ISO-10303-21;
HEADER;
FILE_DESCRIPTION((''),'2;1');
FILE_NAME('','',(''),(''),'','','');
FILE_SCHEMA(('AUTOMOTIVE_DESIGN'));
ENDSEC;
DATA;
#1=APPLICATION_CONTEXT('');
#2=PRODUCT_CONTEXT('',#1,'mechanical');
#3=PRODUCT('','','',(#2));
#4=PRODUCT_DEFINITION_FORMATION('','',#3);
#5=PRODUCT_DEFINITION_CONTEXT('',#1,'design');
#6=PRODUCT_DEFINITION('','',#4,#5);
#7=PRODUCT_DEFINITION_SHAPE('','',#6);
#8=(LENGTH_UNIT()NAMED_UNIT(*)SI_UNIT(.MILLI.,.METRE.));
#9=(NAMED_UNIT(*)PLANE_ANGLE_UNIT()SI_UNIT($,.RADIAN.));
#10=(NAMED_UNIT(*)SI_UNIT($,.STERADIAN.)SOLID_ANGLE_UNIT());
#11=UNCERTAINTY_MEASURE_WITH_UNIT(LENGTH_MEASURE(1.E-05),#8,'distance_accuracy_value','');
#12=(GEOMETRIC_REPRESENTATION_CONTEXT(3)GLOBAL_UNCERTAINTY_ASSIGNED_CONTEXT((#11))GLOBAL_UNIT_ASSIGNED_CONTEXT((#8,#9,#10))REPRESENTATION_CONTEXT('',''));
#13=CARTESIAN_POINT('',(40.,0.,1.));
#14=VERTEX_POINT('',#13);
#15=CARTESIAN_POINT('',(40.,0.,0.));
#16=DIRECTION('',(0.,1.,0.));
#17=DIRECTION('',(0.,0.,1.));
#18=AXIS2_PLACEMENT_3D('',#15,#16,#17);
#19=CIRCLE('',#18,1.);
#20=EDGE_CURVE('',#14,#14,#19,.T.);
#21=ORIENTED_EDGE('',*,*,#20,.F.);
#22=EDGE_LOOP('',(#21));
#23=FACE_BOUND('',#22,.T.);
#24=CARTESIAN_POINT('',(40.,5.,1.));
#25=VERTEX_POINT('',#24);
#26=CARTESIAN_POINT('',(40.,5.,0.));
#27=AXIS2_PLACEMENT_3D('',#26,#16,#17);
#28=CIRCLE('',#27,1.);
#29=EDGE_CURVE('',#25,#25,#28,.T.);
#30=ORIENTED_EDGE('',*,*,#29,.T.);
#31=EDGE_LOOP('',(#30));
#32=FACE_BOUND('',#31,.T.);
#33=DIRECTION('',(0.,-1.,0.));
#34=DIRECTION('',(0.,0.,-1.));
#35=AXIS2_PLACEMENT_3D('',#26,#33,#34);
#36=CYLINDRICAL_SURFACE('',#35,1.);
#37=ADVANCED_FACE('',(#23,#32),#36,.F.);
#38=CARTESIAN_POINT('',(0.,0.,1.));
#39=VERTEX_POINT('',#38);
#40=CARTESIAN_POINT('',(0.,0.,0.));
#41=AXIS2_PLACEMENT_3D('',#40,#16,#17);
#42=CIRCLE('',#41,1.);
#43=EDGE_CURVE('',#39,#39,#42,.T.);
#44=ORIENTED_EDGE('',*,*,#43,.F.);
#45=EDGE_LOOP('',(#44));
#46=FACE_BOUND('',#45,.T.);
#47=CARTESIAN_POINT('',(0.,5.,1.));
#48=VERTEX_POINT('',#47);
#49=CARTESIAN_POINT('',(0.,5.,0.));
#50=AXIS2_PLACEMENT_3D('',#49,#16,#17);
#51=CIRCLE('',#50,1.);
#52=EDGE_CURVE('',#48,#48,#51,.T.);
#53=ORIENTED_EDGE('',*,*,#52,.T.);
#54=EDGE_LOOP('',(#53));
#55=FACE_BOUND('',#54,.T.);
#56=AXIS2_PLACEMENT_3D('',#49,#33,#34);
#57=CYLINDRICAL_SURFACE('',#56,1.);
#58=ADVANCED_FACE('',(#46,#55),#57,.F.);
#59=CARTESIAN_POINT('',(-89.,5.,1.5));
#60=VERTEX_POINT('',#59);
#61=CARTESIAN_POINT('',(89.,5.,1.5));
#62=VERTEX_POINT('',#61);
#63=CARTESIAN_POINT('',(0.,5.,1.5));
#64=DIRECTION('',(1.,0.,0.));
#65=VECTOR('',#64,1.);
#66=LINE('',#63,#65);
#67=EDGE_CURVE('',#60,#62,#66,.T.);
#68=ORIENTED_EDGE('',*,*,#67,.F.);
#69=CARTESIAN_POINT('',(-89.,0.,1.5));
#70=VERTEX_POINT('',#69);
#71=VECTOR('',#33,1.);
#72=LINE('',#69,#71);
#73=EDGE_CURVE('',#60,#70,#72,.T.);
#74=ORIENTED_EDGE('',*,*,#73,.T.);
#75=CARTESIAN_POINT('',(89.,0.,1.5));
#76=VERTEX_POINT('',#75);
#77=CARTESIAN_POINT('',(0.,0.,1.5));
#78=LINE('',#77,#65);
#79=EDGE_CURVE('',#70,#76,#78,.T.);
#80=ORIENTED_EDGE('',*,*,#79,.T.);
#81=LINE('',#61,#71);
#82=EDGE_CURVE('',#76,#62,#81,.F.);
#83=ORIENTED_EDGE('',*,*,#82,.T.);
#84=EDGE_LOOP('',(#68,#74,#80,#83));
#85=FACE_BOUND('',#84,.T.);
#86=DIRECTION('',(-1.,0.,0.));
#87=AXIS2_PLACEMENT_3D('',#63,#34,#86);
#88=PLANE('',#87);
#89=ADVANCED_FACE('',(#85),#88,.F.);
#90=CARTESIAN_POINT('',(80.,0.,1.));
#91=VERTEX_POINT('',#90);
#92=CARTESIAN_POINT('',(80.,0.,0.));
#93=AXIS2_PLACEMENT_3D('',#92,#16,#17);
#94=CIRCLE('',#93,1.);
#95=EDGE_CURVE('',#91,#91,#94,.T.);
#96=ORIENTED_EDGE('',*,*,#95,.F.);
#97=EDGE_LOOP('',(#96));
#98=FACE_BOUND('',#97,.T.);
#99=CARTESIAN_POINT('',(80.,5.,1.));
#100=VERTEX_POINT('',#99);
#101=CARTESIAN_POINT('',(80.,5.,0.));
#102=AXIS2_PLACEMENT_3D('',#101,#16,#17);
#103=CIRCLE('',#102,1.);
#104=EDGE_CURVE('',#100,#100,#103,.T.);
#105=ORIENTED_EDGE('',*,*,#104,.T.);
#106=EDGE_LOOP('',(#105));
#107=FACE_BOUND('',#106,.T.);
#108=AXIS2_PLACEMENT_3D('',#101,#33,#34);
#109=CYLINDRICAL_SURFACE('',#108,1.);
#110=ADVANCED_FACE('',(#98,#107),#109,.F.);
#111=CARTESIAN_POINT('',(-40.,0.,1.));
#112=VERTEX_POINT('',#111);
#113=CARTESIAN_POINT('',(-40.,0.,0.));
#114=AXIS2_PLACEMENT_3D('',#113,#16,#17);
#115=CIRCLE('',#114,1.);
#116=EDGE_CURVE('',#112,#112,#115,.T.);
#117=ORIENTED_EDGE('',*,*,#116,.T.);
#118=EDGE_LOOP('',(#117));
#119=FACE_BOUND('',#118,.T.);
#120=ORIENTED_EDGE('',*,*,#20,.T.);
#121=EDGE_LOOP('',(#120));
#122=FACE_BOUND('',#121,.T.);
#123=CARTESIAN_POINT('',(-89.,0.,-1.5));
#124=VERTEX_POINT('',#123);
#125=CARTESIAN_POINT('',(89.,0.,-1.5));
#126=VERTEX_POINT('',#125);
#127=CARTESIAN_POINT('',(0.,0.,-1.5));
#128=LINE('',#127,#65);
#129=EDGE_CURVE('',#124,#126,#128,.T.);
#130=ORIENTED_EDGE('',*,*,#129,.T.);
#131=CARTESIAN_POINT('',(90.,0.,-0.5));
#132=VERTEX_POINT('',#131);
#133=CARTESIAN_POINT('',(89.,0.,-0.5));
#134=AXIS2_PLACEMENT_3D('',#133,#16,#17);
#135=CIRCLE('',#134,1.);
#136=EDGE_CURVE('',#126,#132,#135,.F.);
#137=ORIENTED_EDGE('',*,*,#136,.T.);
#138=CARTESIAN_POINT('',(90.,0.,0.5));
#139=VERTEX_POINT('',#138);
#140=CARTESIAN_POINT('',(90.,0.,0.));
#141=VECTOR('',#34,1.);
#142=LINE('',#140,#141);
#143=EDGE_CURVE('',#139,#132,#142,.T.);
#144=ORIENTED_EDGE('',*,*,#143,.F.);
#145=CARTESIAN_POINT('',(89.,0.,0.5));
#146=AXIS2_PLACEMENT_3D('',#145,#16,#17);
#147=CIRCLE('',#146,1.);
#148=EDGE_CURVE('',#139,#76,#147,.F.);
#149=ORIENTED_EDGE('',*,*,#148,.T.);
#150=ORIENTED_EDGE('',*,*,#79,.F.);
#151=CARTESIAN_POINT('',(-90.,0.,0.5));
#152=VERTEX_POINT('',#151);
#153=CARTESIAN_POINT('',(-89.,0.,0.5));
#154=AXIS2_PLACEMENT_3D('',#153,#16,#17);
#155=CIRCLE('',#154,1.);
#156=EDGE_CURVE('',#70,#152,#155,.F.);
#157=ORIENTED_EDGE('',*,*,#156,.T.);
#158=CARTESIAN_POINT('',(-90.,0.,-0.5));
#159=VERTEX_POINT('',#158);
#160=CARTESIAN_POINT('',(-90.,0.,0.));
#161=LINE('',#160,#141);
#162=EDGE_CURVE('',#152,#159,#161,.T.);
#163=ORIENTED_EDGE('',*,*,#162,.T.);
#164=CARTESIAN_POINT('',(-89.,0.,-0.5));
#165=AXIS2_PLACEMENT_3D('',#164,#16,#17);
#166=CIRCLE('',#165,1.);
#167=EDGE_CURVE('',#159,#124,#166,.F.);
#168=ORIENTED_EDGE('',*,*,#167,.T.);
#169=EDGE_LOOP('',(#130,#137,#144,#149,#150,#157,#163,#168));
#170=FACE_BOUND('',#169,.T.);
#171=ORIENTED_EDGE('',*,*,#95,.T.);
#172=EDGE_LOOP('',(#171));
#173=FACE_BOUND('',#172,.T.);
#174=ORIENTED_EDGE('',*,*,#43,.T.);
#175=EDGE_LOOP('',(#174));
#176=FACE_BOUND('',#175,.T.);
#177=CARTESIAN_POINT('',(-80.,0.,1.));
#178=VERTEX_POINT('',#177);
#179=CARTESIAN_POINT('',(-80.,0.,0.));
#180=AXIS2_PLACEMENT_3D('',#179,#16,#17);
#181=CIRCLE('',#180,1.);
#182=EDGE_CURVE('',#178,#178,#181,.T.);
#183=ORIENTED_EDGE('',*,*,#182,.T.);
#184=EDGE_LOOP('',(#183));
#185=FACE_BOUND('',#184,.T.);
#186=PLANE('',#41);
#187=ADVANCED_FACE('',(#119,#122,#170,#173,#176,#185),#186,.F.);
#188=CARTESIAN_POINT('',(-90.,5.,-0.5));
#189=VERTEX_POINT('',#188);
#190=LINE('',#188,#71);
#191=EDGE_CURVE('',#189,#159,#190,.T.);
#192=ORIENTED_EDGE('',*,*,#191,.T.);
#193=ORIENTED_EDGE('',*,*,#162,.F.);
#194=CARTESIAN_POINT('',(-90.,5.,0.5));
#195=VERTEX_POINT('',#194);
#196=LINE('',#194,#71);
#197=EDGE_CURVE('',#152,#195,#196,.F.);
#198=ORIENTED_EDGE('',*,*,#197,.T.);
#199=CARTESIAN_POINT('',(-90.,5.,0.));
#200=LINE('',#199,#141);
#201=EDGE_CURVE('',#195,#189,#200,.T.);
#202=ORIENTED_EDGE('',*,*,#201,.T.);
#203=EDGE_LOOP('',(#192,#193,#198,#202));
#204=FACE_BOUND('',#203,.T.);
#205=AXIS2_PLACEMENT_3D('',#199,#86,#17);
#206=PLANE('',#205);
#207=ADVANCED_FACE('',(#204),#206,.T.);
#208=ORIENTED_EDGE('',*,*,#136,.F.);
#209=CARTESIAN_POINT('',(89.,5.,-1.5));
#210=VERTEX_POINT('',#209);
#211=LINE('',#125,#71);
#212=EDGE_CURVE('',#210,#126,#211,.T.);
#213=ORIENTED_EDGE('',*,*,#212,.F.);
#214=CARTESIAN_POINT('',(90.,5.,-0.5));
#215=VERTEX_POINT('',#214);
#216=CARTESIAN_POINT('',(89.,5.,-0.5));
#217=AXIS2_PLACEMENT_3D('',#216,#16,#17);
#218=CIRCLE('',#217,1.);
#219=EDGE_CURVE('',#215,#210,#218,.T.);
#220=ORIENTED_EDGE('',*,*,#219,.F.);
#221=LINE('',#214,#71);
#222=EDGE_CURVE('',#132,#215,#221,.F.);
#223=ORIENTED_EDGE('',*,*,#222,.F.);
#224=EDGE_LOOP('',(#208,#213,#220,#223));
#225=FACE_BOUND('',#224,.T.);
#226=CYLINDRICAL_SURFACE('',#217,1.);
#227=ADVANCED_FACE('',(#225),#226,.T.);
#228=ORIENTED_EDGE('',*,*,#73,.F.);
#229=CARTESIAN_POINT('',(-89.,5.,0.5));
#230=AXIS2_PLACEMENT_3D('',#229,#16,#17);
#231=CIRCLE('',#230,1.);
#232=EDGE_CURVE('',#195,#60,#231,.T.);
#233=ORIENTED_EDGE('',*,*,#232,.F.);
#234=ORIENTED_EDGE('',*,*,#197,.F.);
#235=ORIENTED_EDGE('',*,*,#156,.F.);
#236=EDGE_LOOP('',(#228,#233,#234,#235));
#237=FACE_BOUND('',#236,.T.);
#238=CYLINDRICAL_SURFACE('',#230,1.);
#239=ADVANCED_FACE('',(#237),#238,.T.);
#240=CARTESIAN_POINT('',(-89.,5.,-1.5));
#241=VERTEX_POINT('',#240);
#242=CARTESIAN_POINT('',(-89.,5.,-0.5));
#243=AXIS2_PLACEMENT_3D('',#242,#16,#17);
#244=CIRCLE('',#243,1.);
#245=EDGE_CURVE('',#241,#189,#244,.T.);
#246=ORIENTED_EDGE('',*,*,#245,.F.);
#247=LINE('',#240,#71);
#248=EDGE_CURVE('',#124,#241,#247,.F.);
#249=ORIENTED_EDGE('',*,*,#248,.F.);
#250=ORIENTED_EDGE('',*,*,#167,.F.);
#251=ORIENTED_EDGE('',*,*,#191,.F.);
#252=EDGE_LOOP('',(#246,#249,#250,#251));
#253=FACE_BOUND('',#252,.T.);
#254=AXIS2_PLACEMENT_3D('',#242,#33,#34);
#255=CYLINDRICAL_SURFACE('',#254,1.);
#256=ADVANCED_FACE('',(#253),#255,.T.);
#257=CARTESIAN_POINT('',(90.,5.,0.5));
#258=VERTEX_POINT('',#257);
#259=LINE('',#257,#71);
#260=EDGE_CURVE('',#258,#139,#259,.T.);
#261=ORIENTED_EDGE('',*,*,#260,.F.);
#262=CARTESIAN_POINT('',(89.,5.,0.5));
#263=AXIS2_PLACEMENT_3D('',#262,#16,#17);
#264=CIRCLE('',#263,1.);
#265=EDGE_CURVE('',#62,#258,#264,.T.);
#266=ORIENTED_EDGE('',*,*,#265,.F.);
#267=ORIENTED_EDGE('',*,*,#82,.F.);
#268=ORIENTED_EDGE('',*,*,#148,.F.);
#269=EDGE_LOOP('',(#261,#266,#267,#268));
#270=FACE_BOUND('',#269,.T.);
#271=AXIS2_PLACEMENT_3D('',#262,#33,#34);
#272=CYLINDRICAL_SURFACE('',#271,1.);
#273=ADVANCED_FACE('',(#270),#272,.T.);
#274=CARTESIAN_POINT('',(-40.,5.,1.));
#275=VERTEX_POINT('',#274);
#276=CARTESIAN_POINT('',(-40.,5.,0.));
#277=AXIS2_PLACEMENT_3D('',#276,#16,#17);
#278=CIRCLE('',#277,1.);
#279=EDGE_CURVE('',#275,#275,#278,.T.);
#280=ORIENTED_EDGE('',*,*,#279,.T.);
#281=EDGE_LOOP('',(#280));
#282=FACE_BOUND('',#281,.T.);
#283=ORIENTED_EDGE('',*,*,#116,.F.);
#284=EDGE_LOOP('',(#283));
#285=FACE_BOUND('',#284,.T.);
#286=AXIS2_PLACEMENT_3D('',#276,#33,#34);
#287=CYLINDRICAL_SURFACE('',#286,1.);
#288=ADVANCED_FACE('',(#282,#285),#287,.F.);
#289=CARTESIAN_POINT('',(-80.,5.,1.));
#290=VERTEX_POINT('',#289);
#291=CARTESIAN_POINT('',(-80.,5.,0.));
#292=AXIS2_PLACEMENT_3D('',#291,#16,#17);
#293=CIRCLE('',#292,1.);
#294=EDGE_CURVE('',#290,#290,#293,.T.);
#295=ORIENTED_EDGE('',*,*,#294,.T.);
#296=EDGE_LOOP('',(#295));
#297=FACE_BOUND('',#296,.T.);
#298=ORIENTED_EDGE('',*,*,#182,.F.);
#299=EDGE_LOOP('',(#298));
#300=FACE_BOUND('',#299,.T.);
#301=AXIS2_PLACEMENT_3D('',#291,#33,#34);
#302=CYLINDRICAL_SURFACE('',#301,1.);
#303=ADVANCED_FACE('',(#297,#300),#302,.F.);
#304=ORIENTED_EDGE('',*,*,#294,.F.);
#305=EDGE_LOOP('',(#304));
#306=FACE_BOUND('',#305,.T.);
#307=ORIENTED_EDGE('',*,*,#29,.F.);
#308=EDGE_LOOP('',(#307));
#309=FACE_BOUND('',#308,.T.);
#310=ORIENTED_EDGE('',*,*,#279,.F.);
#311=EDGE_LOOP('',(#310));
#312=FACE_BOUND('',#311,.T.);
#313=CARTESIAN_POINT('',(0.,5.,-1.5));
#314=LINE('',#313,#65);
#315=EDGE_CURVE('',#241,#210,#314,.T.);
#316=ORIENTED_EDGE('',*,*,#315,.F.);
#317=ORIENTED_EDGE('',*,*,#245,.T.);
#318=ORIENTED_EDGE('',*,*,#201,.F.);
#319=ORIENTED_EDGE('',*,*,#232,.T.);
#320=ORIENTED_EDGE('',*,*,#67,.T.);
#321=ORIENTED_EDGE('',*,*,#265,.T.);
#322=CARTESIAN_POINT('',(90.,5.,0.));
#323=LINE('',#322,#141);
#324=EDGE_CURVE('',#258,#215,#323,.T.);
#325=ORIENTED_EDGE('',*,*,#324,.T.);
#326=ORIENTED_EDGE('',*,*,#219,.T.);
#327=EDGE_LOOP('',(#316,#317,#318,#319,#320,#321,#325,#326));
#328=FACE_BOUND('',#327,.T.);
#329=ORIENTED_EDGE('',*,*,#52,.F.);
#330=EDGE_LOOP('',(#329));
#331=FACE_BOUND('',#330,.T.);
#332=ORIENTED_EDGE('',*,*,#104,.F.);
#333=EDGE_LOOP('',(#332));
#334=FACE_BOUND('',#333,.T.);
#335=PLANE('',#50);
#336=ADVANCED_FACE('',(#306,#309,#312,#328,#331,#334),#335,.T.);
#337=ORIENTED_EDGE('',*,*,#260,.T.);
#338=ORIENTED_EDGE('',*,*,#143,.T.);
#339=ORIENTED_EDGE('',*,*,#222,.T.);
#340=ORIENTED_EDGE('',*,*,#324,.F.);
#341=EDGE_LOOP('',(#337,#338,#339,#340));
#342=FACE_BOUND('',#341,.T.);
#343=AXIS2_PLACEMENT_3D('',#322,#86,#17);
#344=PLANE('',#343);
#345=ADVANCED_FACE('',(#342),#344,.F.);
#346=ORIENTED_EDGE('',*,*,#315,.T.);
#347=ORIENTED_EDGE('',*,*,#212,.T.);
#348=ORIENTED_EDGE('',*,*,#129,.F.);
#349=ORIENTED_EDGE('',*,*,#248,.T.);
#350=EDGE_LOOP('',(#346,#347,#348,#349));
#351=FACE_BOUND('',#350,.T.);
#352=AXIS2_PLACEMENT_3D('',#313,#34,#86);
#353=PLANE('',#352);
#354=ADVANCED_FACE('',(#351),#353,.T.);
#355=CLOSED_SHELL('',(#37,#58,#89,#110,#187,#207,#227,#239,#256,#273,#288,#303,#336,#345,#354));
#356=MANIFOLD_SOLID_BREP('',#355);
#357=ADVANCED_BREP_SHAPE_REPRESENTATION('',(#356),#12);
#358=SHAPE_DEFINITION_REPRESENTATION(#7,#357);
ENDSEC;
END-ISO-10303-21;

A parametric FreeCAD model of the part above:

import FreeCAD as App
import Part
import Sketcher
Q = App.Units.Quantity


def edges_at(feature, points):
    """Names of the edges that pass closest to the given points."""
    edges = feature.Shape.Edges
    near = lambda p: min(range(len(edges)), key=lambda i: edges[i].distToShape(Part.Vertex(*p))[0])
    return sorted({f"Edge{near(p) + 1}" for p in points})


def add_polygon(sketch, points):
    """Adds a closed chain of lines whose ends are joined by coincident constraints."""
    first, n = sketch.GeometryCount, len(points)
    for a, b in zip(points, points[1:] + points[:1]):
        sketch.addGeometry(Part.LineSegment(App.Vector(*a, 0), App.Vector(*b, 0)), False)
    for i in range(n):
        sketch.addConstraint(Sketcher.Constraint("Coincident", first + i, 2, first + (i + 1) % n, 1))

doc = App.newDocument("Part")
body = doc.addObject("PartDesign::Body", "Body")

sketch1 = body.newObject("Sketcher::SketchObject", "Sketch")
sketch1.AttachmentSupport = (doc.getObject("XZ_Plane"), [""])
sketch1.MapMode = "FlatFace"
add_polygon(sketch1, [(-90, -1.5), (-90, 1.5), (90, 1.5), (90, -1.5)])
sketch1.addGeometry(Part.Circle(App.Vector(-80, 0, 0), App.Vector(0, 0, 1), 1), False)
sketch1.addGeometry(Part.Circle(App.Vector(-40, 0, 0), App.Vector(0, 0, 1), 1), False)
sketch1.addGeometry(Part.Circle(App.Vector(0, 0, 0), App.Vector(0, 0, 1), 1), False)
sketch1.addGeometry(Part.Circle(App.Vector(40, 0, 0), App.Vector(0, 0, 1), 1), False)
sketch1.addGeometry(Part.Circle(App.Vector(80, 0, 0), App.Vector(0, 0, 1), 1), False)
sketch1.addConstraint(Sketcher.Constraint("Vertical", 0))
sketch1.addConstraint(Sketcher.Constraint("Horizontal", 1))
sketch1.addConstraint(Sketcher.Constraint("Vertical", 2))
sketch1.addConstraint(Sketcher.Constraint("Horizontal", 3))
sketch1.addConstraint(Sketcher.Constraint("Coincident", 6, 3, -1, 1))
sketch1.addConstraint(Sketcher.Constraint("Equal", 4, 5))
sketch1.addConstraint(Sketcher.Constraint("Equal", 5, 6))
sketch1.addConstraint(Sketcher.Constraint("Equal", 6, 7))
sketch1.addConstraint(Sketcher.Constraint("Equal", 7, 8))
sketch1.addConstraint(Sketcher.Constraint("Symmetric", 5, 3, 7, 3, -1, 1))
sketch1.addConstraint(Sketcher.Constraint("Symmetric", 4, 3, 8, 3, -1, 1))
sketch1.addConstraint(Sketcher.Constraint("Symmetric", 0, 2, 2, 2, -1, 1))
sketch1.addConstraint(Sketcher.Constraint("PointOnObject", 4, 3, -1))
sketch1.addConstraint(Sketcher.Constraint("PointOnObject", 5, 3, -1))
sketch1.addConstraint(Sketcher.Constraint("Diameter", 4, Q("2 mm")))
sketch1.addConstraint(Sketcher.Constraint("DistanceX", 1, 1, 1, 2, Q("180 mm")))
sketch1.addConstraint(Sketcher.Constraint("DistanceY", 0, 1, 0, 2, Q("3 mm")))
sketch1.addConstraint(Sketcher.Constraint("DistanceX", 4, 3, -1, 1, Q("80 mm")))
sketch1.addConstraint(Sketcher.Constraint("DistanceX", 5, 3, -1, 1, Q("40 mm")))
pad1 = body.newObject("PartDesign::Pad", "Pad")
pad1.Profile = sketch1
pad1.Length = 5
pad1.Reversed = True
doc.recompute()

fillet = body.newObject("PartDesign::Fillet", "Fillet")
fillet.Base = (pad1, edges_at(pad1, [
    (-90, 2.5, 1.5),
    (-90, 2.5, -1.5),
    (90, 2.5, 1.5),
    (90, 2.5, -1.5),
]))
fillet.Radius = 1

doc.recompute()
